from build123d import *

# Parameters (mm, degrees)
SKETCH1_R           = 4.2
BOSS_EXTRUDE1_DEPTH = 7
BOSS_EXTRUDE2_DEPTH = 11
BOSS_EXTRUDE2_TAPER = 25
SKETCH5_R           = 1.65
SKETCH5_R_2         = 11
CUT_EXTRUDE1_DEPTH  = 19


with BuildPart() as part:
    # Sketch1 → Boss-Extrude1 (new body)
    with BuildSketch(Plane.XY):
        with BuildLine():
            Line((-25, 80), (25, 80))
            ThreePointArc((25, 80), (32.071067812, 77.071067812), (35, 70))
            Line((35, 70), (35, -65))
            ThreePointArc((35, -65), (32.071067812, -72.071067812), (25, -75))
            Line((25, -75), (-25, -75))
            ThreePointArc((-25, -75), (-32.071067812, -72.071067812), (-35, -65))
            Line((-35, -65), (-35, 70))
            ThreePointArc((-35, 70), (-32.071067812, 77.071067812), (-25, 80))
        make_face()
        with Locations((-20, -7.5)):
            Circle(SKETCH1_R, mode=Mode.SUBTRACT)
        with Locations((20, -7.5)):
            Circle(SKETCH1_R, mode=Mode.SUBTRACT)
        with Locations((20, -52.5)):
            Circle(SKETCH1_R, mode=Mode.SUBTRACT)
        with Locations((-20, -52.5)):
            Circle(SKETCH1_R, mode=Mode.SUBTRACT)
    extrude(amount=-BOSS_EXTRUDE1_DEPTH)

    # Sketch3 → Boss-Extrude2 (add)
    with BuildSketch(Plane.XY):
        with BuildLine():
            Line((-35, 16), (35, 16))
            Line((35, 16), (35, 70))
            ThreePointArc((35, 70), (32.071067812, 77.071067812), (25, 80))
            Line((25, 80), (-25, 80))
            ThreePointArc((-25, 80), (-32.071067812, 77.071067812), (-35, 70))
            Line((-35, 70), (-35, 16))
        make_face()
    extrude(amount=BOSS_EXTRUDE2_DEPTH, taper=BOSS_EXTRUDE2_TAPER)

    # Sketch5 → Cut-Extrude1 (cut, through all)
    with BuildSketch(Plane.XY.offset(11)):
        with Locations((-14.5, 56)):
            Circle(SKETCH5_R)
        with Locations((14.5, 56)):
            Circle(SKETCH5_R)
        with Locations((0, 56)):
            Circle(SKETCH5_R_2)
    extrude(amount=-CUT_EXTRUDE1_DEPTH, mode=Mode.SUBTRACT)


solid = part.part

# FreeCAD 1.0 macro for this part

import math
import FreeCAD as App
import Part
import Sketcher
from FreeCAD import Vector
Q = App.Units.Quantity

doc = App.newDocument("Part")
params = doc.addObject("Spreadsheet::Sheet", "Params")
for row, (alias, value) in enumerate([
    ("sketch1_radius", "10 mm"),
    ("sketch1_diameter", "8.4 mm"),
    ("sketch1_width", "50 mm"),
    ("sketch1_height", "135 mm"),
    ("pad1_length", "7 mm"),
    ("sketch2_radius", "10 mm"),
    ("sketch2_width", "70 mm"),
    ("sketch2_height", "54 mm"),
    ("pad2_length", "11 mm"),
    ("pad2_taper", "-25 deg"),
    ("sketch3_diameter", "22 mm"),
    ("sketch3_diameter2", "3.3 mm"),
], start=1):
    params.set(f"A{row}", alias)
    params.set(f"B{row}", "=" + value)
    params.setAlias(f"B{row}", alias)

body = doc.addObject("PartDesign::Body", "Body")

sketch1 = body.newObject("Sketcher::SketchObject", "Sketch")
sketch1.AttachmentSupport = (doc.getObject("XY_Plane"), [""])
sketch1.MapMode = "FlatFace"
sketch1.addGeometry(Part.LineSegment(Vector(25, 80, 0), Vector(-25, 80, 0)), False)
sketch1.addGeometry(Part.ArcOfCircle(Part.Circle(Vector(-25, 70, 0), Vector(0, 0, 1), 10), math.radians(90), math.radians(180)), False)
sketch1.addGeometry(Part.LineSegment(Vector(-35, 70, 0), Vector(-35, -65, 0)), False)
sketch1.addGeometry(Part.ArcOfCircle(Part.Circle(Vector(-25, -65, 0), Vector(0, 0, 1), 10), math.radians(180), math.radians(270)), False)
sketch1.addGeometry(Part.LineSegment(Vector(-25, -75, 0), Vector(25, -75, 0)), False)
sketch1.addGeometry(Part.ArcOfCircle(Part.Circle(Vector(25, -65, 0), Vector(0, 0, 1), 10), math.radians(-90), math.radians(0)), False)
sketch1.addGeometry(Part.LineSegment(Vector(35, -65, 0), Vector(35, 70, 0)), False)
sketch1.addGeometry(Part.ArcOfCircle(Part.Circle(Vector(25, 70, 0), Vector(0, 0, 1), 10), math.radians(0), math.radians(90)), False)
sketch1.addGeometry(Part.Circle(Vector(20, -52.5, 0), Vector(0, 0, 1), 4.2), False)
sketch1.addGeometry(Part.Circle(Vector(-20, -52.5, 0), Vector(0, 0, 1), 4.2), False)
sketch1.addGeometry(Part.Circle(Vector(20, -7.5, 0), Vector(0, 0, 1), 4.2), False)
sketch1.addGeometry(Part.Circle(Vector(-20, -7.5, 0), Vector(0, 0, 1), 4.2), False)
sketch1.addConstraint(Sketcher.Constraint("Tangent", 0, 2, 1, 1))
sketch1.addConstraint(Sketcher.Constraint("Tangent", 1, 2, 2, 1))
sketch1.addConstraint(Sketcher.Constraint("Tangent", 2, 2, 3, 1))
sketch1.addConstraint(Sketcher.Constraint("Tangent", 3, 2, 4, 1))
sketch1.addConstraint(Sketcher.Constraint("Tangent", 4, 2, 5, 1))
sketch1.addConstraint(Sketcher.Constraint("Tangent", 5, 2, 6, 1))
sketch1.addConstraint(Sketcher.Constraint("Tangent", 6, 2, 7, 1))
sketch1.addConstraint(Sketcher.Constraint("Tangent", 7, 2, 0, 1))
sketch1.addConstraint(Sketcher.Constraint("Horizontal", 0))
sketch1.addConstraint(Sketcher.Constraint("Vertical", 2))
sketch1.addConstraint(Sketcher.Constraint("Horizontal", 4))
sketch1.addConstraint(Sketcher.Constraint("Vertical", 6))
sketch1.addConstraint(Sketcher.Constraint("Equal", 1, 3))
sketch1.addConstraint(Sketcher.Constraint("Equal", 3, 5))
sketch1.addConstraint(Sketcher.Constraint("Equal", 5, 7))
sketch1.addConstraint(Sketcher.Constraint("Equal", 8, 9))
sketch1.addConstraint(Sketcher.Constraint("Equal", 9, 10))
sketch1.addConstraint(Sketcher.Constraint("Equal", 10, 11))
sketch1.addConstraint(Sketcher.Constraint("Symmetric", 8, 3, 9, 3, -2))
sketch1.addConstraint(Sketcher.Constraint("Symmetric", 10, 3, 11, 3, -2))
sketch1.addConstraint(Sketcher.Constraint("Vertical", 8, 3, 10, 3))
sketch1.addConstraint(Sketcher.Constraint("Radius", 1, Q("10 mm")))
sketch1.addConstraint(Sketcher.Constraint("Diameter", 8, Q("8.4 mm")))
sketch1.addConstraint(Sketcher.Constraint("DistanceX", 0, 2, 0, 1, Q("50 mm")))
sketch1.addConstraint(Sketcher.Constraint("DistanceY", 2, 2, 2, 1, Q("135 mm")))
sketch1.addConstraint(Sketcher.Constraint("DistanceX", 1, 3, -1, 1, Q("25 mm")))
sketch1.addConstraint(Sketcher.Constraint("DistanceY", -1, 1, 1, 3, Q("70 mm")))
sketch1.addConstraint(Sketcher.Constraint("DistanceX", -1, 1, 8, 3, Q("20 mm")))
sketch1.addConstraint(Sketcher.Constraint("DistanceY", 8, 3, 10, 3, Q("45 mm")))
sketch1.addConstraint(Sketcher.Constraint("DistanceY", 8, 3, -1, 1, Q("52.5 mm")))
sketch1.setExpression("Constraints[21]", "Params.sketch1_radius")
sketch1.setExpression("Constraints[22]", "Params.sketch1_diameter")
sketch1.setExpression("Constraints[23]", "Params.sketch1_width")
sketch1.setExpression("Constraints[24]", "Params.sketch1_height")
pad1 = body.newObject("PartDesign::Pad", "Pad")
pad1.Profile = sketch1
pad1.setExpression("Length", "Params.pad1_length")
pad1.Reversed = True

sketch2 = body.newObject("Sketcher::SketchObject", "Sketch001")
sketch2.AttachmentSupport = (doc.getObject("XY_Plane"), [""])
sketch2.MapMode = "FlatFace"
sketch2.addGeometry(Part.LineSegment(Vector(-35, 16, 0), Vector(35, 16, 0)), False)
sketch2.addGeometry(Part.LineSegment(Vector(35, 16, 0), Vector(35, 70, 0)), False)
sketch2.addGeometry(Part.ArcOfCircle(Part.Circle(Vector(25, 70, 0), Vector(0, 0, 1), 10), math.radians(0), math.radians(90)), False)
sketch2.addGeometry(Part.LineSegment(Vector(25, 80, 0), Vector(-25, 80, 0)), False)
sketch2.addGeometry(Part.ArcOfCircle(Part.Circle(Vector(-25, 70, 0), Vector(0, 0, 1), 10), math.radians(90), math.radians(180)), False)
sketch2.addGeometry(Part.LineSegment(Vector(-35, 70, 0), Vector(-35, 16, 0)), False)
sketch2.addConstraint(Sketcher.Constraint("Coincident", 0, 2, 1, 1))
sketch2.addConstraint(Sketcher.Constraint("Tangent", 1, 2, 2, 1))
sketch2.addConstraint(Sketcher.Constraint("Tangent", 2, 2, 3, 1))
sketch2.addConstraint(Sketcher.Constraint("Tangent", 3, 2, 4, 1))
sketch2.addConstraint(Sketcher.Constraint("Tangent", 4, 2, 5, 1))
sketch2.addConstraint(Sketcher.Constraint("Coincident", 5, 2, 0, 1))
sketch2.addConstraint(Sketcher.Constraint("Horizontal", 0))
sketch2.addConstraint(Sketcher.Constraint("Vertical", 1))
sketch2.addConstraint(Sketcher.Constraint("Horizontal", 3))
sketch2.addConstraint(Sketcher.Constraint("Vertical", 5))
sketch2.addConstraint(Sketcher.Constraint("Equal", 2, 4))
sketch2.addConstraint(Sketcher.Constraint("Radius", 2, Q("10 mm")))
sketch2.addConstraint(Sketcher.Constraint("DistanceX", 0, 1, 0, 2, Q("70 mm")))
sketch2.addConstraint(Sketcher.Constraint("DistanceY", 1, 1, 1, 2, Q("54 mm")))
sketch2.addConstraint(Sketcher.Constraint("DistanceX", -1, 1, 2, 3, Q("25 mm")))
sketch2.addConstraint(Sketcher.Constraint("DistanceY", -1, 1, 2, 3, Q("70 mm")))
sketch2.setExpression("Constraints[11]", "Params.sketch2_radius")
sketch2.setExpression("Constraints[12]", "Params.sketch2_width")
sketch2.setExpression("Constraints[13]", "Params.sketch2_height")
pad2 = body.newObject("PartDesign::Pad", "Pad001")
pad2.Profile = sketch2
pad2.setExpression("Length", "Params.pad2_length")
pad2.setExpression("TaperAngle", "Params.pad2_taper")

sketch3 = body.newObject("Sketcher::SketchObject", "Sketch002")
sketch3.AttachmentSupport = (doc.getObject("XY_Plane"), [""])
sketch3.MapMode = "FlatFace"
sketch3.AttachmentOffset = App.Placement(Vector(0, 0, 11), App.Rotation())
sketch3.addGeometry(Part.Circle(Vector(-14.5, 56, 0), Vector(0, 0, 1), 1.65), False)
sketch3.addGeometry(Part.Circle(Vector(14.5, 56, 0), Vector(0, 0, 1), 1.65), False)
sketch3.addGeometry(Part.Circle(Vector(0, 56, 0), Vector(0, 0, 1), 11), False)
sketch3.addConstraint(Sketcher.Constraint("Equal", 0, 1))
sketch3.addConstraint(Sketcher.Constraint("Symmetric", 0, 3, 1, 3, -2))
sketch3.addConstraint(Sketcher.Constraint("PointOnObject", 2, 3, -2))
sketch3.addConstraint(Sketcher.Constraint("Horizontal", 1, 3, 2, 3))
sketch3.addConstraint(Sketcher.Constraint("Diameter", 2, Q("22 mm")))
sketch3.addConstraint(Sketcher.Constraint("Diameter", 0, Q("3.3 mm")))
sketch3.addConstraint(Sketcher.Constraint("DistanceY", -1, 1, 0, 3, Q("56 mm")))
sketch3.addConstraint(Sketcher.Constraint("DistanceX", 0, 3, 1, 3, Q("29 mm")))
sketch3.setExpression("Constraints[4]", "Params.sketch3_diameter")
sketch3.setExpression("Constraints[5]", "Params.sketch3_diameter2")
pocket1 = body.newObject("PartDesign::Pocket", "Pocket")
pocket1.Profile = sketch3
pocket1.Type = "ThroughAll"

doc.recompute()
